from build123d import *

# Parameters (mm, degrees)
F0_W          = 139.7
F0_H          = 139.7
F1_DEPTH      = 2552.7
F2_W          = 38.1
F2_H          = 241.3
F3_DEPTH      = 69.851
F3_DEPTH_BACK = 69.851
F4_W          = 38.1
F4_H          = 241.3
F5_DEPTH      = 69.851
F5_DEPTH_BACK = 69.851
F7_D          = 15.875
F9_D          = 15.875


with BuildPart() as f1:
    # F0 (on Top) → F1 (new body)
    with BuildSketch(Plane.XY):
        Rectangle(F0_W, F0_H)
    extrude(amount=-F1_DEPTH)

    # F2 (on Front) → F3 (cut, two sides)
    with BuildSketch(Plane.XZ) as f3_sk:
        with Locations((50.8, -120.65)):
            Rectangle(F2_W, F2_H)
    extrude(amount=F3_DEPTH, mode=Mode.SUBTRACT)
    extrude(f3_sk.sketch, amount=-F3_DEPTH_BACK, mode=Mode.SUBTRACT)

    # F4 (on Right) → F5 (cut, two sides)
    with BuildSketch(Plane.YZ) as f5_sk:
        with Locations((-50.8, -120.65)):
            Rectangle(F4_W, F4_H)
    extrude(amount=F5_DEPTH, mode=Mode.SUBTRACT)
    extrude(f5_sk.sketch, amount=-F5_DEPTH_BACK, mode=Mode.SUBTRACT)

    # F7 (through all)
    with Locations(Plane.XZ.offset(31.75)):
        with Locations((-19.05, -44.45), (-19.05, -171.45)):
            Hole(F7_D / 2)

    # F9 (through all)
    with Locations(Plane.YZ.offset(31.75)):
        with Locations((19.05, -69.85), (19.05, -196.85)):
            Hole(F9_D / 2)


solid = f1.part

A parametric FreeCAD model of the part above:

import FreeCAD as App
import Part
import Sketcher

V = App.Vector
Q = App.Units.Quantity


def add_polygon(sketch, points):
    """Adds a closed chain of lines whose ends are joined by coincident constraints."""
    first, n = sketch.GeometryCount, len(points)
    for a, b in zip(points, points[1:] + points[:1]):
        sketch.addGeometry(Part.LineSegment(App.Vector(*a, 0), App.Vector(*b, 0)), False)
    for i in range(n):
        sketch.addConstraint(Sketcher.Constraint("Coincident", first + i, 2, first + (i + 1) % n, 1))

doc = App.newDocument("Part")
body = doc.addObject("PartDesign::Body", "Body")

# Sketch on XY plane
sketch1 = doc.addObject("Sketcher::SketchObject", "Sketch")
body.addObject(sketch1)
sketch1.AttachmentSupport = (doc.XY_Plane, [""])
sketch1.MapMode = "FlatFace"
add_polygon(sketch1, [(-69.85, 69.85), (-69.85, -69.85), (69.85, -69.85), (69.85, 69.85)])  # lines 0-3
sketch1.addConstraint([
    Sketcher.Constraint("Vertical", 0),
    Sketcher.Constraint("Horizontal", 1),
    Sketcher.Constraint("Vertical", 2),
    Sketcher.Constraint("Horizontal", 3),
    Sketcher.Constraint("Symmetric", 0, 2, 2, 2, -1, 1),
    Sketcher.Constraint("Equal", 3, 0),
    Sketcher.Constraint("DistanceX", 1, 1, 1, 2, Q("5.5 in")),
])
pad1 = doc.addObject("PartDesign::Pad", "Pad")
body.addObject(pad1)
pad1.Profile = sketch1
pad1.Length = Q("100.5 in")
pad1.Reversed = True

# Sketch on XZ plane
sketch2 = doc.addObject("Sketcher::SketchObject", "Sketch001")
body.addObject(sketch2)
sketch2.AttachmentSupport = (doc.XZ_Plane, [""])
sketch2.MapMode = "FlatFace"
add_polygon(sketch2, [(31.75, 0), (31.75, -241.3), (69.85, -241.3), (69.85, 0)])  # lines 0-3
sketch2.addConstraint([
    Sketcher.Constraint("Vertical", 0),
    Sketcher.Constraint("Horizontal", 1),
    Sketcher.Constraint("Vertical", 2),
    Sketcher.Constraint("Horizontal", 3),
    Sketcher.Constraint("PointOnObject", 2, 2, -1),
    Sketcher.Constraint("DistanceX", 1, 1, 1, 2, Q("1.5 in")),
    Sketcher.Constraint("DistanceY", 0, 2, 0, 1, Q("9.5 in")),
    Sketcher.Constraint("DistanceX", -1, 1, 0, 2, Q("1.25 in")),
])
pocket1 = doc.addObject("PartDesign::Pocket", "Pocket")
body.addObject(pocket1)
pocket1.Profile = sketch2
pocket1.Type = "ThroughAll"
pocket1.Midplane = True

# Sketch on YZ plane
sketch3 = doc.addObject("Sketcher::SketchObject", "Sketch002")
body.addObject(sketch3)
sketch3.AttachmentSupport = (doc.YZ_Plane, [""])
sketch3.MapMode = "FlatFace"
add_polygon(sketch3, [(-69.85, 0), (-69.85, -241.3), (-31.75, -241.3), (-31.75, 0)])  # lines 0-3
sketch3.addConstraint([
    Sketcher.Constraint("Vertical", 0),
    Sketcher.Constraint("Horizontal", 1),
    Sketcher.Constraint("Vertical", 2),
    Sketcher.Constraint("Horizontal", 3),
    Sketcher.Constraint("PointOnObject", 2, 2, -1),
    Sketcher.Constraint("DistanceX", 1, 1, 1, 2, Q("1.5 in")),
    Sketcher.Constraint("DistanceY", 0, 2, 0, 1, Q("9.5 in")),
    Sketcher.Constraint("DistanceX", 0, 2, -1, 1, Q("2.75 in")),
])
pocket2 = doc.addObject("PartDesign::Pocket", "Pocket001")
body.addObject(pocket2)
pocket2.Profile = sketch3
pocket2.Type = "ThroughAll"
pocket2.Midplane = True

# Sketch on XZ plane
sketch4 = doc.addObject("Sketcher::SketchObject", "Sketch003")
body.addObject(sketch4)
sketch4.AttachmentSupport = (doc.XZ_Plane, [""])
sketch4.MapMode = "FlatFace"
sketch4.AttachmentOffset = App.Placement(V(0, 0, 1.25 * 25.4), App.Rotation())
sketch4.addGeometry([
    Part.Circle(V(-19.05, -44.45, 0), V(0, 0, 1), 7.9375),
    Part.Circle(V(-19.05, -171.45, 0), V(0, 0, 1), 7.9375),
], False)
sketch4.addConstraint([
    Sketcher.Constraint("Equal", 0, 1),
    Sketcher.Constraint("Vertical", 0, 3, 1, 3),
    Sketcher.Constraint("Diameter", 0, Q("0.625 in")),
    Sketcher.Constraint("DistanceY", 1, 3, 0, 3, Q("5 in")),
    Sketcher.Constraint("DistanceX", 0, 3, -1, 1, Q("0.75 in")),
    Sketcher.Constraint("DistanceY", 0, 3, -1, 1, Q("1.75 in")),
])
doc.recompute()
hole = doc.addObject("PartDesign::Hole", "Hole")
body.addObject(hole)
hole.Profile = sketch4
hole.ThreadType = "None"
hole.Diameter = Q("0.625 in")
hole.DepthType = "ThroughAll"

# Sketch on YZ plane
sketch5 = doc.addObject("Sketcher::SketchObject", "Sketch004")
body.addObject(sketch5)
sketch5.AttachmentSupport = (doc.YZ_Plane, [""])
sketch5.MapMode = "FlatFace"
sketch5.AttachmentOffset = App.Placement(V(0, 0, 1.25 * 25.4), App.Rotation())
sketch5.addGeometry([
    Part.Circle(V(19.05, -69.85, 0), V(0, 0, 1), 7.9375),
    Part.Circle(V(19.05, -196.85, 0), V(0, 0, 1), 7.9375),
], False)
sketch5.addConstraint([
    Sketcher.Constraint("Equal", 0, 1),
    Sketcher.Constraint("Vertical", 0, 3, 1, 3),
    Sketcher.Constraint("Diameter", 0, Q("0.625 in")),
    Sketcher.Constraint("DistanceY", 1, 3, 0, 3, Q("5 in")),
    Sketcher.Constraint("DistanceX", -1, 1, 0, 3, Q("0.75 in")),
    Sketcher.Constraint("DistanceY", 0, 3, -1, 1, Q("2.75 in")),
])
doc.recompute()
hole2 = doc.addObject("PartDesign::Hole", "Hole001")
body.addObject(hole2)
hole2.Profile = sketch5
hole2.ThreadType = "None"
hole2.Diameter = Q("0.625 in")
hole2.DepthType = "ThroughAll"

doc.recompute()
